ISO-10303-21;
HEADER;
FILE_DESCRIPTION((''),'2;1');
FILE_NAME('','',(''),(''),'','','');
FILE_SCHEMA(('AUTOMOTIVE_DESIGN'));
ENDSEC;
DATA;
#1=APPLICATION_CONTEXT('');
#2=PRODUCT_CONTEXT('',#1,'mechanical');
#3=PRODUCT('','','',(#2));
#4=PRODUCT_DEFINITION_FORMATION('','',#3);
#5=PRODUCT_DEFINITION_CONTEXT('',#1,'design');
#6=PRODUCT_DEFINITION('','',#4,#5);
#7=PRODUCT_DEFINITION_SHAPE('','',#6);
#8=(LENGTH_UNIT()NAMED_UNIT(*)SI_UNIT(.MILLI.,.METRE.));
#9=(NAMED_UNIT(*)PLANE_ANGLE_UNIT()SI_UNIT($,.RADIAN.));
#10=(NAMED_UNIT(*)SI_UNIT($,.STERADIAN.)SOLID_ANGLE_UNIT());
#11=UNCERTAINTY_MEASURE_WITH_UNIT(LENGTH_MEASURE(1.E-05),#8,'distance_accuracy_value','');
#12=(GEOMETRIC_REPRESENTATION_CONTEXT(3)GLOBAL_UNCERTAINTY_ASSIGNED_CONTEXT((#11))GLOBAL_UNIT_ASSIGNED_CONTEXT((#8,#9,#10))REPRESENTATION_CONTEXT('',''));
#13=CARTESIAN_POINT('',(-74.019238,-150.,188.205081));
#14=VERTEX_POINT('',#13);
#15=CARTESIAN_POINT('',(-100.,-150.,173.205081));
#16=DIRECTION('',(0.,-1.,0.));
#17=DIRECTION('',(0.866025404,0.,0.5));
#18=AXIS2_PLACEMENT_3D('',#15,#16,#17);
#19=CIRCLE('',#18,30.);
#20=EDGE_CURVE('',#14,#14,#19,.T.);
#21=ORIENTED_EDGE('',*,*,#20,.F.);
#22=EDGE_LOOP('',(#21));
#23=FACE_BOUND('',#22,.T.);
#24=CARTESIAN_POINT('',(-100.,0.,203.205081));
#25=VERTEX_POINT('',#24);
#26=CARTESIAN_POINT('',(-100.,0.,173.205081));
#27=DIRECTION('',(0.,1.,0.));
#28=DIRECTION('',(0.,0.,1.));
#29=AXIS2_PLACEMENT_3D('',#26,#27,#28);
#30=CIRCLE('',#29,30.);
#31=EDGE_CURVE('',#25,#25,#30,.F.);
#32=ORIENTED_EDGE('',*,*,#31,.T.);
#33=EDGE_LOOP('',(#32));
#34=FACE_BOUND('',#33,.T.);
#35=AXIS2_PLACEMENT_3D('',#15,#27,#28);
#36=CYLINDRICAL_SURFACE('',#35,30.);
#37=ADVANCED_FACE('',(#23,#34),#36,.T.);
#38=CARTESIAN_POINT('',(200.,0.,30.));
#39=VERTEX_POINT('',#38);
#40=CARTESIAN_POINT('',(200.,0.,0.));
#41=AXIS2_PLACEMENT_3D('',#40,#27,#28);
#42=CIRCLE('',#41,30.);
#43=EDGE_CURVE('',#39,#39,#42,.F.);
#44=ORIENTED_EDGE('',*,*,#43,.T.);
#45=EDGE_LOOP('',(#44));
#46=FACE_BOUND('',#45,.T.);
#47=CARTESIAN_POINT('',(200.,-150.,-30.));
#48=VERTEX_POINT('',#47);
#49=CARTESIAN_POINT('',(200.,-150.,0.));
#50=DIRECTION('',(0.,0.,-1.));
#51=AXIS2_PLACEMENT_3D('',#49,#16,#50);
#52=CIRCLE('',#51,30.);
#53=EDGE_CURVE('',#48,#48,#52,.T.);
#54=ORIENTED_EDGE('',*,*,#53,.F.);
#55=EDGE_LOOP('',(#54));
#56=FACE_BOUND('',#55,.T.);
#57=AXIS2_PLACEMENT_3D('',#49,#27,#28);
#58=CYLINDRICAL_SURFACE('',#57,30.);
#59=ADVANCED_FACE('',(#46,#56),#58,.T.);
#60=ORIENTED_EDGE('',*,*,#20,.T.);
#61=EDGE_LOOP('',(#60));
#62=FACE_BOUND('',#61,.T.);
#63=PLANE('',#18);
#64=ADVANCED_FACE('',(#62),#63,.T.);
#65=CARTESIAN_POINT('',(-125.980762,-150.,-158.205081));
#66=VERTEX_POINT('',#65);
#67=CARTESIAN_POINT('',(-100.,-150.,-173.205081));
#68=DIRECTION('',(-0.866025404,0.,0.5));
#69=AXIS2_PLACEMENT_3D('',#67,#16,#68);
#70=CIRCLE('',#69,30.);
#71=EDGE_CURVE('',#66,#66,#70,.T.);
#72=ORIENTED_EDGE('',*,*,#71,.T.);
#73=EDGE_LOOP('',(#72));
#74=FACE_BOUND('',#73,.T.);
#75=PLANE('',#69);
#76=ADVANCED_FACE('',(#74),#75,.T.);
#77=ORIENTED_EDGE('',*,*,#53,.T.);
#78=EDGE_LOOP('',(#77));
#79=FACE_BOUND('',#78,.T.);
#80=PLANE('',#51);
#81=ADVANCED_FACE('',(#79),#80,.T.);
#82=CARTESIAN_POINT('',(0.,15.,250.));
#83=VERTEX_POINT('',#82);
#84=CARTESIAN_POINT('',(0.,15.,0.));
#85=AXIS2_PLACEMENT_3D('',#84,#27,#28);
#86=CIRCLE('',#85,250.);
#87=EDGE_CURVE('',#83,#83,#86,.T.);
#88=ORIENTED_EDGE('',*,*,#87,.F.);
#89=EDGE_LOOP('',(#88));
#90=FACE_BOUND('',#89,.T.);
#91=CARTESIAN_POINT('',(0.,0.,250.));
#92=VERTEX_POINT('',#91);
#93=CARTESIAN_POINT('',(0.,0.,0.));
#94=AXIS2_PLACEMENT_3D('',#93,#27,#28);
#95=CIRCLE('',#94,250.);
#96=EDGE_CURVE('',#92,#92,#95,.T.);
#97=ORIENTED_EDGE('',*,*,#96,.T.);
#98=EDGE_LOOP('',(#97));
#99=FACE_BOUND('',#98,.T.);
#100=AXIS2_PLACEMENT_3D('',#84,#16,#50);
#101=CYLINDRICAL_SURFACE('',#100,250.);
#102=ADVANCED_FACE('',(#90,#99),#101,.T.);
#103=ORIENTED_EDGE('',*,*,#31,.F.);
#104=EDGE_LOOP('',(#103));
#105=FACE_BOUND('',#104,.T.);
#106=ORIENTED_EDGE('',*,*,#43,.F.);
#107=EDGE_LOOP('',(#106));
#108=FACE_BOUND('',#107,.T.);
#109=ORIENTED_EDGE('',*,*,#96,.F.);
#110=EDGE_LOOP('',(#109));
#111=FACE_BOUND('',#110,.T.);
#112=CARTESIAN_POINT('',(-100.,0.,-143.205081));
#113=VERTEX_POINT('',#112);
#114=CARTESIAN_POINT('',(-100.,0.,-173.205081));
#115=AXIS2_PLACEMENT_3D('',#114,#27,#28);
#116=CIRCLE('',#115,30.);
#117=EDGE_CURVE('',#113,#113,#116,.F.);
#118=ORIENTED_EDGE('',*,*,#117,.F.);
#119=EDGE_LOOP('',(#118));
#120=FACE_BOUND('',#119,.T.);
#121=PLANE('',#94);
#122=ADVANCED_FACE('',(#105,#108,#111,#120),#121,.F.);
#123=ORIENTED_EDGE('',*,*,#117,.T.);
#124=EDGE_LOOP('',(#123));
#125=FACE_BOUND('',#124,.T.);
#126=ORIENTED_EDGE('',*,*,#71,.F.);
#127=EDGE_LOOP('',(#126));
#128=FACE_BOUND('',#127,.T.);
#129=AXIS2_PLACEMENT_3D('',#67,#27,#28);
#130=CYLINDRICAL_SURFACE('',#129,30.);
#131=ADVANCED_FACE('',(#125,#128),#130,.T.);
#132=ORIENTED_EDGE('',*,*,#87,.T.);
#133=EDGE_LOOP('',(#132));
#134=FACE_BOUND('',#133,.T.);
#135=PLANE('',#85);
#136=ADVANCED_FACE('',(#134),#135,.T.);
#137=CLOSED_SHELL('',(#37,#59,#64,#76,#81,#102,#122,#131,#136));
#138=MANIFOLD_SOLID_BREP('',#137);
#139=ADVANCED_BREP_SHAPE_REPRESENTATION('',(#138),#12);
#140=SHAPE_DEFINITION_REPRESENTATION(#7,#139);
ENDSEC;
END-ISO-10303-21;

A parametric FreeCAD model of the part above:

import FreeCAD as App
import Part
import Sketcher
from FreeCAD import Vector
Q = App.Units.Quantity

doc = App.newDocument("Part")
params = doc.addObject("Spreadsheet::Sheet", "Params")
for row, (alias, value) in enumerate([
    ("sketch1_diameter", "500 mm"),
    ("pad1_length", "15 mm"),
    ("sketch2_diameter", "60 mm"),
    ("pad2_length", "150 mm"),
], start=1):
    params.set(f"A{row}", alias)
    params.set(f"B{row}", "=" + value)
    params.setAlias(f"B{row}", alias)

body = doc.addObject("PartDesign::Body", "Body")

sketch1 = body.newObject("Sketcher::SketchObject", "Sketch")
sketch1.AttachmentSupport = (doc.getObject("XZ_Plane"), [""])
sketch1.MapMode = "FlatFace"
sketch1.addGeometry(Part.Circle(Vector(0, 0, 0), Vector(0, 0, 1), 250), False)
sketch1.addConstraint([
    Sketcher.Constraint("Coincident", 0, 3, -1, 1),
    Sketcher.Constraint("Diameter", 0, Q("500 mm")),
])
sketch1.setExpression("Constraints[1]", "Params.sketch1_diameter")
pad1 = body.newObject("PartDesign::Pad", "Pad")
pad1.Profile = sketch1
pad1.setExpression("Length", "Params.pad1_length")
pad1.Reversed = True

sketch2 = body.newObject("Sketcher::SketchObject", "Sketch001")
sketch2.AttachmentSupport = (doc.getObject("XZ_Plane"), [""])
sketch2.MapMode = "FlatFace"
sketch2.addGeometry(Part.Circle(Vector(200, 0, 0), Vector(0, 0, 1), 30), False)
sketch2.addConstraint([
    Sketcher.Constraint("PointOnObject", 0, 3, -1),
    Sketcher.Constraint("Diameter", 0, Q("60 mm")),
    Sketcher.Constraint("DistanceX", -1, 1, 0, 3, Q("200 mm")),
])
sketch2.setExpression("Constraints[1]", "Params.sketch2_diameter")
pad2 = body.newObject("PartDesign::Pad", "Pad001")
pad2.Profile = sketch2
pad2.setExpression("Length", "Params.pad2_length")
doc.recompute()

polarpattern = body.newObject("PartDesign::PolarPattern", "PolarPattern")
polarpattern.Originals = [pad2]
polarpattern.Axis = (doc.getObject("Y_Axis"), [""])
polarpattern.Angle = 360
polarpattern.Occurrences = 3
body.Tip = polarpattern

doc.recompute()
